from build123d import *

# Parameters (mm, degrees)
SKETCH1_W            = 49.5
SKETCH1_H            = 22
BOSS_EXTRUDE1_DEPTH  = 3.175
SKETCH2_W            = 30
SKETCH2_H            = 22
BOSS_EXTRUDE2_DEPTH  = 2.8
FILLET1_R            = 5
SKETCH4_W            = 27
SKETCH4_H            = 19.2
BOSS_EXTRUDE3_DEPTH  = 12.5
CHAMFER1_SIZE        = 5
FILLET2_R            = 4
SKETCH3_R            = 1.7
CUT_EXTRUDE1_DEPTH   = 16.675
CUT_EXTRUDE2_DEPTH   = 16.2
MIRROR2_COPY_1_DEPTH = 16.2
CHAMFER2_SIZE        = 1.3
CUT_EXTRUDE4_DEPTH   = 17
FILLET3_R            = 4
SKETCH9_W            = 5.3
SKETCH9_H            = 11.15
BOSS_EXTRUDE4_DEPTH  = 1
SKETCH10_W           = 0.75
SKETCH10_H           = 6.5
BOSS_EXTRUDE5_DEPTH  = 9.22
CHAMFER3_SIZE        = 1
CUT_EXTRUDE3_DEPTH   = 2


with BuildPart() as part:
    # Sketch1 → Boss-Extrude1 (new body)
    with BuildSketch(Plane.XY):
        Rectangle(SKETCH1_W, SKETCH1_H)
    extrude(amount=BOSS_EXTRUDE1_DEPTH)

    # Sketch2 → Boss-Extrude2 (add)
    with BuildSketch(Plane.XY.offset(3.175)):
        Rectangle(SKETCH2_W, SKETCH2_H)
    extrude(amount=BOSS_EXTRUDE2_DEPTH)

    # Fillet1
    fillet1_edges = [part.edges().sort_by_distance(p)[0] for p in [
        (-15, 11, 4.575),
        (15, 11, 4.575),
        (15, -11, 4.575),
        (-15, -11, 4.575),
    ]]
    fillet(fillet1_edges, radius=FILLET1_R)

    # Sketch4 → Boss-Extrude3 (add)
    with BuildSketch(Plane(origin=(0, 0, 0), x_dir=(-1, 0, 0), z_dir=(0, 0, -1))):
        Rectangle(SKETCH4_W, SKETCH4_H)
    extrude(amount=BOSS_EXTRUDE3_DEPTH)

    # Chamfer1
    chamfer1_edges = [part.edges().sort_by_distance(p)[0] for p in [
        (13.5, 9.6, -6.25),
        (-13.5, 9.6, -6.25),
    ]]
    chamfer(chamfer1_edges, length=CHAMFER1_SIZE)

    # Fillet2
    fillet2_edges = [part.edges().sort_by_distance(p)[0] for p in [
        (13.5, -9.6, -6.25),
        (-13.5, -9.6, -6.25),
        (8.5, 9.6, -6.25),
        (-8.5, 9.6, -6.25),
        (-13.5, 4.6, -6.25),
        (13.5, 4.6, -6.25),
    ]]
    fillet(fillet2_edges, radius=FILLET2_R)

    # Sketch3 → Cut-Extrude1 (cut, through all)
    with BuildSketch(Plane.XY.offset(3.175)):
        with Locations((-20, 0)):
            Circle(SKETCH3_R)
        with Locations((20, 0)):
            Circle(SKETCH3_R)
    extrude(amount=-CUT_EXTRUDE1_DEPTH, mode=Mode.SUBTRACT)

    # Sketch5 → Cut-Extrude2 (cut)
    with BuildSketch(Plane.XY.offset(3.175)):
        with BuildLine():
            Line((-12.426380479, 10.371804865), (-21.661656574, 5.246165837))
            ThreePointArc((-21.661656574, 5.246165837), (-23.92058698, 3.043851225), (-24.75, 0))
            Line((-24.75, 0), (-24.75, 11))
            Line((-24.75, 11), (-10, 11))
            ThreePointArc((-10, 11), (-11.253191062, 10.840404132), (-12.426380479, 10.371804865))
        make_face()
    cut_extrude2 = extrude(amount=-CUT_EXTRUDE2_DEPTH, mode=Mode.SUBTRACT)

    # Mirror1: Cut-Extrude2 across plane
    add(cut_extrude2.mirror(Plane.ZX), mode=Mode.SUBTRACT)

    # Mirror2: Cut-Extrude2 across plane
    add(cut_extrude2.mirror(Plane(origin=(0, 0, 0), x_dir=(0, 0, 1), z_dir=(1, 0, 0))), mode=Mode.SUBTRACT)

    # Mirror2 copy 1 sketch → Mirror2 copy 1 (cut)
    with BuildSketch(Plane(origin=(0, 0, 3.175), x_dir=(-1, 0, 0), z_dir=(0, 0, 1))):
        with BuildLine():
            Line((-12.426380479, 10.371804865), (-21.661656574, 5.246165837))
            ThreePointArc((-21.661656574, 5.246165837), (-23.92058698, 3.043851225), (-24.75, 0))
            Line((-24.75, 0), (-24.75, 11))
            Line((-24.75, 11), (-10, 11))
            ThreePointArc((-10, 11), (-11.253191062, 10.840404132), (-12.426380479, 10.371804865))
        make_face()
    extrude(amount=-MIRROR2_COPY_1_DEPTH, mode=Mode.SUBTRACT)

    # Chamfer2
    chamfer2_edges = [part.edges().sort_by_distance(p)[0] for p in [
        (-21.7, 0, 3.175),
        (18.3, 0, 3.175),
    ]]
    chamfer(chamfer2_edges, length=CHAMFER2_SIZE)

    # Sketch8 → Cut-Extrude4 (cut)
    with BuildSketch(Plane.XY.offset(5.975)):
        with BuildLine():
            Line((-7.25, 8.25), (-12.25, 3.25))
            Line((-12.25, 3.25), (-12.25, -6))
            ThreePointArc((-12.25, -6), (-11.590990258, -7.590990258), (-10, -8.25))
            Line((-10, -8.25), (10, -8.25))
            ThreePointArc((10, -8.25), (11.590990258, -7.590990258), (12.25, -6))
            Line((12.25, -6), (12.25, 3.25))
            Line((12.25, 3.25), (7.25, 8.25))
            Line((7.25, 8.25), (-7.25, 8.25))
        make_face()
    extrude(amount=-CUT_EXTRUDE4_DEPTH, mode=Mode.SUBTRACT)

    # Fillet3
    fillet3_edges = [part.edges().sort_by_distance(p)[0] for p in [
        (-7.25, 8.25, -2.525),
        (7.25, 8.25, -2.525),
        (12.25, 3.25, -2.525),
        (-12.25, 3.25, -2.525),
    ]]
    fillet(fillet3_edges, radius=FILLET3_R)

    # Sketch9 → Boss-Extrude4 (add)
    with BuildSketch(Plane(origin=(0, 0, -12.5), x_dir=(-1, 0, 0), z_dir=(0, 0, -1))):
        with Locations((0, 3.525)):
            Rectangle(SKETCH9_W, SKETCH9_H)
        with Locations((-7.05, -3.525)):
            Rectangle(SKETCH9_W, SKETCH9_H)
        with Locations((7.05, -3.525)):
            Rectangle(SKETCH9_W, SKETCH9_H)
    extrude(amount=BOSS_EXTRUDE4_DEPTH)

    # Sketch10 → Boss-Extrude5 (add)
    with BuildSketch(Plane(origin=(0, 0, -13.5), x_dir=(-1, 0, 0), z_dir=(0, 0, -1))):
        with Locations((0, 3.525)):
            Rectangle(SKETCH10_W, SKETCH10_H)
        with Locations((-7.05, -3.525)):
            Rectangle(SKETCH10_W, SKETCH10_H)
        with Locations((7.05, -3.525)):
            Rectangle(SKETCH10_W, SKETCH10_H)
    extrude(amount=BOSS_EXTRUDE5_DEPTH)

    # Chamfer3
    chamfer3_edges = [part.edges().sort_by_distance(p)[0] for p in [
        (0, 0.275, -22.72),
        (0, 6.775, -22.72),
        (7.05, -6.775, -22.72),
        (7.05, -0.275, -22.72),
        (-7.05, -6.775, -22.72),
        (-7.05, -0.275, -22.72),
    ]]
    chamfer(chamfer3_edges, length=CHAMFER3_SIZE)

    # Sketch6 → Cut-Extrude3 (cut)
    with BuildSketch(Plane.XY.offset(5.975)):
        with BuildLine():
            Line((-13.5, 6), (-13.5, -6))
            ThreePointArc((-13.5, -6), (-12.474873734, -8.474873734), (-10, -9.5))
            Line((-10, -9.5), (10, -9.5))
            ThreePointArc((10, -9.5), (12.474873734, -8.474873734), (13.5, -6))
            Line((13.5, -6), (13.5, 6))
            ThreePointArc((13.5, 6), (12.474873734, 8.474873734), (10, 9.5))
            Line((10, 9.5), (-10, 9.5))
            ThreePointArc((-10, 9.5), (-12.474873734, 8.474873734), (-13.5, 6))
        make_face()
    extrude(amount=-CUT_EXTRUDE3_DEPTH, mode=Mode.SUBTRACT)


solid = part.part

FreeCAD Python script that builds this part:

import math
import FreeCAD as App
import Part
import Sketcher

V = App.Vector
Q = App.Units.Quantity


def edges_at(feature, points):
    """Names of the edges that pass closest to the given points."""
    edges = feature.Shape.Edges
    near = lambda p: min(range(len(edges)), key=lambda i: edges[i].distToShape(Part.Vertex(*p))[0])
    return sorted({f"Edge{near(p) + 1}" for p in points})


def add_polygon(sketch, points):
    """Adds a closed chain of lines whose ends are joined by coincident constraints."""
    first, n = sketch.GeometryCount, len(points)
    for a, b in zip(points, points[1:] + points[:1]):
        sketch.addGeometry(Part.LineSegment(App.Vector(*a, 0), App.Vector(*b, 0)), False)
    for i in range(n):
        sketch.addConstraint(Sketcher.Constraint("Coincident", first + i, 2, first + (i + 1) % n, 1))

doc = App.newDocument("Part")
body = doc.addObject("PartDesign::Body", "Body")

# Sketch on XY plane
sketch1 = body.newObject("Sketcher::SketchObject", "Sketch")
sketch1.AttachmentSupport = (doc.getObject("XY_Plane"), [""])
sketch1.MapMode = "FlatFace"
add_polygon(sketch1, [(-24.75, 11), (-24.75, -11), (24.75, -11), (24.75, 11)])  # lines 0-3
sketch1.addConstraint([
    Sketcher.Constraint("Vertical", 0),
    Sketcher.Constraint("Horizontal", 1),
    Sketcher.Constraint("Vertical", 2),
    Sketcher.Constraint("Horizontal", 3),
    Sketcher.Constraint("Symmetric", 0, 2, 2, 2, -1, 1),
    Sketcher.Constraint("DistanceY", 0, 2, 0, 1, Q("22 mm")),
    Sketcher.Constraint("DistanceX", 1, 1, 1, 2, Q("49.5 mm")),
])
pad1 = body.newObject("PartDesign::Pad", "Pad")
pad1.Profile = sketch1
pad1.Length = 3.175

# Sketch on XY plane
sketch2 = body.newObject("Sketcher::SketchObject", "Sketch001")
sketch2.AttachmentSupport = (doc.getObject("XY_Plane"), [""])
sketch2.MapMode = "FlatFace"
sketch2.AttachmentOffset = App.Placement(V(0, 0, 3.175), App.Rotation())
add_polygon(sketch2, [(-15, 11), (-15, -11), (15, -11), (15, 11)])  # lines 0-3
sketch2.addConstraint([
    Sketcher.Constraint("Vertical", 0),
    Sketcher.Constraint("Horizontal", 1),
    Sketcher.Constraint("Vertical", 2),
    Sketcher.Constraint("Horizontal", 3),
    Sketcher.Constraint("Symmetric", 0, 2, 2, 2, -1, 1),
    Sketcher.Constraint("DistanceX", 1, 1, 1, 2, Q("30 mm")),
    Sketcher.Constraint("DistanceY", 0, 2, 0, 1, Q("22 mm")),
])
pad2 = body.newObject("PartDesign::Pad", "Pad001")
pad2.Profile = sketch2
pad2.Length = 2.8
doc.recompute()

fillet = body.newObject("PartDesign::Fillet", "Fillet")
fillet.Base = (pad2, edges_at(pad2, [
    (-15, 11, 4.575),
    (15, 11, 4.575),
    (15, -11, 4.575),
    (-15, -11, 4.575),
]))
fillet.Radius = 5

# Sketch on XY plane
sketch3 = body.newObject("Sketcher::SketchObject", "Sketch002")
sketch3.AttachmentSupport = (doc.getObject("XY_Plane"), [""])
sketch3.MapMode = "FlatFace"
add_polygon(sketch3, [(13.5, 9.6), (13.5, -9.6), (-13.5, -9.6), (-13.5, 9.6)])  # lines 0-3
sketch3.addConstraint([
    Sketcher.Constraint("Vertical", 0),
    Sketcher.Constraint("Horizontal", 1),
    Sketcher.Constraint("Vertical", 2),
    Sketcher.Constraint("Horizontal", 3),
    Sketcher.Constraint("Symmetric", 0, 2, 2, 2, -1, 1),
    Sketcher.Constraint("DistanceX", 1, 2, 1, 1, Q("27 mm")),
    Sketcher.Constraint("DistanceY", 0, 2, 0, 1, Q("19.2 mm")),
])
pad3 = body.newObject("PartDesign::Pad", "Pad002")
pad3.Profile = sketch3
pad3.Length = 12.5
pad3.Reversed = True
doc.recompute()

chamfer = body.newObject("PartDesign::Chamfer", "Chamfer")
chamfer.Base = (pad3, edges_at(pad3, [(13.5, 9.6, -6.25), (-13.5, 9.6, -6.25)]))
chamfer.Size = 5
doc.recompute()

fillet2 = body.newObject("PartDesign::Fillet", "Fillet001")
fillet2.Base = (chamfer, edges_at(chamfer, [
    (13.5, -9.6, -6.25),
    (-13.5, -9.6, -6.25),
    (8.5, 9.6, -6.25),
    (-8.5, 9.6, -6.25),
    (-13.5, 4.6, -6.25),
    (13.5, 4.6, -6.25),
]))
fillet2.Radius = 4

# Sketch on XY plane
sketch4 = body.newObject("Sketcher::SketchObject", "Sketch003")
sketch4.AttachmentSupport = (doc.getObject("XY_Plane"), [""])
sketch4.MapMode = "FlatFace"
sketch4.AttachmentOffset = App.Placement(V(0, 0, 3.175), App.Rotation())
sketch4.addGeometry([
    Part.Circle(V(-20, 0, 0), V(0, 0, 1), 1.7),
    Part.Circle(V(20, 0, 0), V(0, 0, 1), 1.7),
], False)
sketch4.addConstraint([
    Sketcher.Constraint("Equal", 0, 1),
    Sketcher.Constraint("Symmetric", 0, 3, 1, 3, -1, 1),
    Sketcher.Constraint("PointOnObject", 0, 3, -1),
    Sketcher.Constraint("Diameter", 0, Q("3.4 mm")),
    Sketcher.Constraint("DistanceX", 0, 3, -1, 1, Q("20 mm")),
])
pocket1 = body.newObject("PartDesign::Pocket", "Pocket")
pocket1.Profile = sketch4
pocket1.Type = "ThroughAll"

# Sketch on XY plane
sketch5 = body.newObject("Sketcher::SketchObject", "Sketch004")
sketch5.AttachmentSupport = (doc.getObject("XY_Plane"), [""])
sketch5.MapMode = "FlatFace"
sketch5.AttachmentOffset = App.Placement(V(0, 0, 3.175), App.Rotation())
sketch5.addGeometry([
    Part.LineSegment(V(-21.661657, 5.246166, 0), V(-12.42638, 10.371805, 0)),  # 0
    Part.ArcOfCircle(Part.Circle(V(-10, 6, 0), V(0, 0, 1), 5), math.radians(90), math.radians(119.030563)),  # 1
    Part.LineSegment(V(-10, 11, 0), V(-24.75, 11, 0)),  # 2
    Part.LineSegment(V(-24.75, 11, 0), V(-24.75, 0, 0)),  # 3
    Part.ArcOfCircle(Part.Circle(V(-18.75, 0, 0), V(0, 0, 1), 6), math.radians(119.030563), math.radians(180)),  # 4
], False)
sketch5.addConstraint([
    Sketcher.Constraint("Tangent", 0, 2, 1, 2),
    Sketcher.Constraint("Tangent", 1, 1, 2, 1),
    Sketcher.Constraint("Coincident", 2, 2, 3, 1),
    Sketcher.Constraint("Tangent", 3, 2, 4, 2),
    Sketcher.Constraint("Tangent", 4, 1, 0, 1),
    Sketcher.Constraint("Horizontal", 2),
    Sketcher.Constraint("Vertical", 3),
    Sketcher.Constraint("PointOnObject", 4, 3, -1),
    Sketcher.Constraint("Radius", 1, Q("5 mm")),
    Sketcher.Constraint("Radius", 4, Q("6 mm")),
    Sketcher.Constraint("DistanceY", 3, 2, 3, 1, Q("11 mm")),
    Sketcher.Constraint("DistanceX", 1, 3, -1, 1, Q("10 mm")),
    Sketcher.Constraint("DistanceX", 2, 2, 2, 1, Q("14.75 mm")),
])
pocket2 = body.newObject("PartDesign::Pocket", "Pocket001")
pocket2.Profile = sketch5
pocket2.Length = 16.2
doc.recompute()

mirrored = body.newObject("PartDesign::Mirrored", "Mirrored")
mirrored.Originals = [pocket2]
mirrored.MirrorPlane = (doc.getObject("XZ_Plane"), [""])
body.Tip = mirrored
doc.recompute()

mirrored2 = body.newObject("PartDesign::Mirrored", "Mirrored001")
mirrored2.Originals = [pocket2]
mirrored2.MirrorPlane = (doc.getObject("YZ_Plane"), [""])
body.Tip = mirrored2

# Sketch on XY plane
sketch6 = body.newObject("Sketcher::SketchObject", "Sketch005")
sketch6.AttachmentSupport = (doc.getObject("XY_Plane"), [""])
sketch6.MapMode = "FlatFace"
sketch6.AttachmentOffset = App.Placement(V(0, 0, 3.175), App.Rotation())
sketch6.addGeometry([
    Part.LineSegment(V(21.661657, -5.246166, 0), V(12.42638, -10.371805, 0)),  # 0
    Part.ArcOfCircle(Part.Circle(V(10, -6, 0), V(0, 0, 1), 5), math.radians(-90), math.radians(-60.969437)),  # 1
    Part.LineSegment(V(10, -11, 0), V(24.75, -11, 0)),  # 2
    Part.LineSegment(V(24.75, -11, 0), V(24.75, 0, 0)),  # 3
    Part.ArcOfCircle(Part.Circle(V(18.75, 0, 0), V(0, 0, 1), 6), math.radians(-60.969437), math.radians(0)),  # 4
], False)
sketch6.addConstraint([
    Sketcher.Constraint("Tangent", 0, 2, 1, 2),
    Sketcher.Constraint("Tangent", 1, 1, 2, 1),
    Sketcher.Constraint("Coincident", 2, 2, 3, 1),
    Sketcher.Constraint("Tangent", 3, 2, 4, 2),
    Sketcher.Constraint("Tangent", 4, 1, 0, 1),
    Sketcher.Constraint("Horizontal", 2),
    Sketcher.Constraint("Vertical", 3),
    Sketcher.Constraint("PointOnObject", 4, 3, -1),
    Sketcher.Constraint("Radius", 1, Q("5 mm")),
    Sketcher.Constraint("Radius", 4, Q("6 mm")),
    Sketcher.Constraint("DistanceY", 3, 1, 3, 2, Q("11 mm")),
    Sketcher.Constraint("DistanceX", -1, 1, 1, 3, Q("10 mm")),
    Sketcher.Constraint("DistanceX", 2, 1, 2, 2, Q("14.75 mm")),
])
pocket3 = body.newObject("PartDesign::Pocket", "Pocket002")
pocket3.Profile = sketch6
pocket3.Length = 16.2
doc.recompute()

chamfer2 = body.newObject("PartDesign::Chamfer", "Chamfer001")
chamfer2.Base = (pocket3, edges_at(pocket3, [(-21.7, 0, 3.175), (18.3, 0, 3.175)]))
chamfer2.Size = 1.3

# Sketch on XY plane
sketch7 = body.newObject("Sketcher::SketchObject", "Sketch006")
sketch7.AttachmentSupport = (doc.getObject("XY_Plane"), [""])
sketch7.MapMode = "FlatFace"
sketch7.AttachmentOffset = App.Placement(V(0, 0, 5.975), App.Rotation())
sketch7.addGeometry([
    Part.LineSegment(V(-7.25, 8.25, 0), V(-12.25, 3.25, 0)),  # 0
    Part.LineSegment(V(-12.25, 3.25, 0), V(-12.25, -6, 0)),  # 1
    Part.ArcOfCircle(Part.Circle(V(-10, -6, 0), V(0, 0, 1), 2.25), math.radians(180), math.radians(270)),  # 2
    Part.LineSegment(V(-10, -8.25, 0), V(10, -8.25, 0)),  # 3
    Part.ArcOfCircle(Part.Circle(V(10, -6, 0), V(0, 0, 1), 2.25), math.radians(-90), math.radians(0)),  # 4
    Part.LineSegment(V(12.25, -6, 0), V(12.25, 3.25, 0)),  # 5
    Part.LineSegment(V(12.25, 3.25, 0), V(7.25, 8.25, 0)),  # 6
    Part.LineSegment(V(7.25, 8.25, 0), V(-7.25, 8.25, 0)),  # 7
], False)
sketch7.addConstraint([
    Sketcher.Constraint("Coincident", 0, 2, 1, 1),
    Sketcher.Constraint("Tangent", 1, 2, 2, 1),
    Sketcher.Constraint("Tangent", 2, 2, 3, 1),
    Sketcher.Constraint("Tangent", 3, 2, 4, 1),
    Sketcher.Constraint("Tangent", 4, 2, 5, 1),
    Sketcher.Constraint("Coincident", 5, 2, 6, 1),
    Sketcher.Constraint("Coincident", 6, 2, 7, 1),
    Sketcher.Constraint("Coincident", 7, 2, 0, 1),
    Sketcher.Constraint("Vertical", 1),
    Sketcher.Constraint("Horizontal", 3),
    Sketcher.Constraint("Vertical", 5),
    Sketcher.Constraint("Horizontal", 7),
    Sketcher.Constraint("Equal", 2, 4),
    Sketcher.Constraint("Symmetric", 0, 2, 5, 2, -2),
    Sketcher.Constraint("Perpendicular", 0, 6),
    Sketcher.Constraint("Equal", 0, 6),
    Sketcher.Constraint("DistanceX", 3, 1, 3, 2, Q("20 mm")),
    Sketcher.Constraint("Radius", 2, Q("2.25 mm")),
    Sketcher.Constraint("DistanceX", 7, 2, 7, 1, Q("14.5 mm")),
    Sketcher.Constraint("DistanceY", 2, 3, -1, 1, Q("6 mm")),
    Sketcher.Constraint("DistanceY", 1, 2, 1, 1, Q("9.25 mm")),
])
pocket4 = body.newObject("PartDesign::Pocket", "Pocket003")
pocket4.Profile = sketch7
pocket4.Length = 17
doc.recompute()

fillet3 = body.newObject("PartDesign::Fillet", "Fillet002")
fillet3.Base = (pocket4, edges_at(pocket4, [
    (-7.25, 8.25, -2.525),
    (7.25, 8.25, -2.525),
    (12.25, 3.25, -2.525),
    (-12.25, 3.25, -2.525),
]))
fillet3.Radius = 4

# Sketch on XY plane
sketch8 = body.newObject("Sketcher::SketchObject", "Sketch007")
sketch8.AttachmentSupport = (doc.getObject("XY_Plane"), [""])
sketch8.MapMode = "FlatFace"
sketch8.AttachmentOffset = App.Placement(V(0, 0, -12.5), App.Rotation())
add_polygon(sketch8, [(2.65, 9.1), (2.65, -2.05), (-2.65, -2.05), (-2.65, 9.1)])  # lines 0-3
add_polygon(sketch8, [(9.7, 2.05), (9.7, -9.1), (4.4, -9.1), (4.4, 2.05)])  # lines 4-7
add_polygon(sketch8, [(-4.4, 2.05), (-4.4, -9.1), (-9.7, -9.1), (-9.7, 2.05)])  # lines 8-11
sketch8.addConstraint([
    Sketcher.Constraint("Vertical", 0),
    Sketcher.Constraint("Horizontal", 1),
    Sketcher.Constraint("Vertical", 2),
    Sketcher.Constraint("Horizontal", 3),
    Sketcher.Constraint("Vertical", 4),
    Sketcher.Constraint("Horizontal", 5),
    Sketcher.Constraint("Vertical", 6),
    Sketcher.Constraint("Horizontal", 7),
    Sketcher.Constraint("Vertical", 8),
    Sketcher.Constraint("Horizontal", 9),
    Sketcher.Constraint("Vertical", 10),
    Sketcher.Constraint("Horizontal", 11),
    Sketcher.Constraint("Symmetric", 5, 2, 8, 2, -2),
    Sketcher.Constraint("Symmetric", 7, 2, 10, 2, -2),
    Sketcher.Constraint("Equal", 3, 5),
    Sketcher.Constraint("Equal", 2, 4),
    Sketcher.Constraint("DistanceX", 1, 2, 1, 1, Q("5.3 mm")),
    Sketcher.Constraint("DistanceY", 0, 2, 0, 1, Q("11.15 mm")),
    Sketcher.Constraint("DistanceY", -1, 1, 2, 2, Q("9.1 mm")),
    Sketcher.Constraint("DistanceX", -1, 1, 4, 2, Q("9.7 mm")),
    Sketcher.Constraint("DistanceY", 4, 2, -1, 1, Q("9.1 mm")),
    Sketcher.Constraint("DistanceX", -1, 1, 0, 2, Q("2.65 mm")),
])
pad4 = body.newObject("PartDesign::Pad", "Pad003")
pad4.Profile = sketch8
pad4.Length = 1
pad4.Reversed = True

# Sketch on XY plane
sketch9 = body.newObject("Sketcher::SketchObject", "Sketch008")
sketch9.AttachmentSupport = (doc.getObject("XY_Plane"), [""])
sketch9.MapMode = "FlatFace"
sketch9.AttachmentOffset = App.Placement(V(0, 0, -13.5), App.Rotation())
add_polygon(sketch9, [(0.375, 6.775), (0.375, 0.275), (-0.375, 0.275), (-0.375, 6.775)])  # lines 0-3
add_polygon(sketch9, [(7.425, -0.275), (7.425, -6.775), (6.675, -6.775), (6.675, -0.275)])  # lines 4-7
add_polygon(sketch9, [(-6.675, -0.275), (-6.675, -6.775), (-7.425, -6.775), (-7.425, -0.275)])  # lines 8-11
sketch9.addConstraint([
    Sketcher.Constraint("Vertical", 0),
    Sketcher.Constraint("Horizontal", 1),
    Sketcher.Constraint("Vertical", 2),
    Sketcher.Constraint("Horizontal", 3),
    Sketcher.Constraint("Vertical", 4),
    Sketcher.Constraint("Horizontal", 5),
    Sketcher.Constraint("Vertical", 6),
    Sketcher.Constraint("Horizontal", 7),
    Sketcher.Constraint("Vertical", 8),
    Sketcher.Constraint("Horizontal", 9),
    Sketcher.Constraint("Vertical", 10),
    Sketcher.Constraint("Horizontal", 11),
    Sketcher.Constraint("Symmetric", 5, 2, 8, 2, -2),
    Sketcher.Constraint("Symmetric", 7, 2, 10, 2, -2),
    Sketcher.Constraint("Equal", 3, 5),
    Sketcher.Constraint("Equal", 2, 4),
    Sketcher.Constraint("DistanceY", 0, 2, 0, 1, Q("6.5 mm")),
    Sketcher.Constraint("DistanceX", 1, 2, 1, 1, Q("0.75 mm")),
    Sketcher.Constraint("DistanceX", 1, 2, 4, 2, Q("7.8 mm")),
    Sketcher.Constraint("DistanceX", 8, 2, 1, 2, Q("6.3 mm")),
    Sketcher.Constraint("DistanceY", 4, 2, 0, 2, Q("7.05 mm")),
    Sketcher.Constraint("DistanceY", -1, 1, 0, 2, Q("0.275 mm")),
])
pad5 = body.newObject("PartDesign::Pad", "Pad004")
pad5.Profile = sketch9
pad5.Length = 9.22
pad5.Reversed = True
doc.recompute()

chamfer3 = body.newObject("PartDesign::Chamfer", "Chamfer002")
chamfer3.Base = (pad5, edges_at(pad5, [
    (0, 0.275, -22.72),
    (0, 6.775, -22.72),
    (7.05, -6.775, -22.72),
    (7.05, -0.275, -22.72),
    (-7.05, -6.775, -22.72),
    (-7.05, -0.275, -22.72),
]))
chamfer3.Size = 1

# Sketch on XY plane
sketch10 = body.newObject("Sketcher::SketchObject", "Sketch009")
sketch10.AttachmentSupport = (doc.getObject("XY_Plane"), [""])
sketch10.MapMode = "FlatFace"
sketch10.AttachmentOffset = App.Placement(V(0, 0, 5.975), App.Rotation())
sketch10.addGeometry([
    Part.LineSegment(V(-13.5, 6, 0), V(-13.5, -6, 0)),  # 0
    Part.ArcOfCircle(Part.Circle(V(-10, -6, 0), V(0, 0, 1), 3.5), math.radians(-180), math.radians(-90)),  # 1
    Part.LineSegment(V(-10, -9.5, 0), V(10, -9.5, 0)),  # 2
    Part.ArcOfCircle(Part.Circle(V(10, -6, 0), V(0, 0, 1), 3.5), math.radians(-90), math.radians(0)),  # 3
    Part.LineSegment(V(13.5, -6, 0), V(13.5, 6, 0)),  # 4
    Part.ArcOfCircle(Part.Circle(V(10, 6, 0), V(0, 0, 1), 3.5), math.radians(0), math.radians(90)),  # 5
    Part.LineSegment(V(10, 9.5, 0), V(-10, 9.5, 0)),  # 6
    Part.ArcOfCircle(Part.Circle(V(-10, 6, 0), V(0, 0, 1), 3.5), math.radians(90), math.radians(180)),  # 7
], False)
sketch10.addConstraint([
    Sketcher.Constraint("Tangent", 0, 2, 1, 1),
    Sketcher.Constraint("Tangent", 1, 2, 2, 1),
    Sketcher.Constraint("Tangent", 2, 2, 3, 1),
    Sketcher.Constraint("Tangent", 3, 2, 4, 1),
    Sketcher.Constraint("Tangent", 4, 2, 5, 1),
    Sketcher.Constraint("Tangent", 5, 2, 6, 1),
    Sketcher.Constraint("Tangent", 6, 2, 7, 1),
    Sketcher.Constraint("Tangent", 7, 2, 0, 1),
    Sketcher.Constraint("Vertical", 0),
    Sketcher.Constraint("Horizontal", 2),
    Sketcher.Constraint("Vertical", 4),
    Sketcher.Constraint("Horizontal", 6),
    Sketcher.Constraint("Equal", 1, 3),
    Sketcher.Constraint("Equal", 3, 5),
    Sketcher.Constraint("Equal", 5, 7),
    Sketcher.Constraint("Symmetric", 1, 3, 5, 3, -1, 1),
    Sketcher.Constraint("Radius", 1, Q("3.5 mm")),
    Sketcher.Constraint("DistanceX", 2, 1, 2, 2, Q("20 mm")),
    Sketcher.Constraint("DistanceY", 0, 2, 0, 1, Q("12 mm")),
])
pocket5 = body.newObject("PartDesign::Pocket", "Pocket004")
pocket5.Profile = sketch10
pocket5.Length = 2

doc.recompute()
